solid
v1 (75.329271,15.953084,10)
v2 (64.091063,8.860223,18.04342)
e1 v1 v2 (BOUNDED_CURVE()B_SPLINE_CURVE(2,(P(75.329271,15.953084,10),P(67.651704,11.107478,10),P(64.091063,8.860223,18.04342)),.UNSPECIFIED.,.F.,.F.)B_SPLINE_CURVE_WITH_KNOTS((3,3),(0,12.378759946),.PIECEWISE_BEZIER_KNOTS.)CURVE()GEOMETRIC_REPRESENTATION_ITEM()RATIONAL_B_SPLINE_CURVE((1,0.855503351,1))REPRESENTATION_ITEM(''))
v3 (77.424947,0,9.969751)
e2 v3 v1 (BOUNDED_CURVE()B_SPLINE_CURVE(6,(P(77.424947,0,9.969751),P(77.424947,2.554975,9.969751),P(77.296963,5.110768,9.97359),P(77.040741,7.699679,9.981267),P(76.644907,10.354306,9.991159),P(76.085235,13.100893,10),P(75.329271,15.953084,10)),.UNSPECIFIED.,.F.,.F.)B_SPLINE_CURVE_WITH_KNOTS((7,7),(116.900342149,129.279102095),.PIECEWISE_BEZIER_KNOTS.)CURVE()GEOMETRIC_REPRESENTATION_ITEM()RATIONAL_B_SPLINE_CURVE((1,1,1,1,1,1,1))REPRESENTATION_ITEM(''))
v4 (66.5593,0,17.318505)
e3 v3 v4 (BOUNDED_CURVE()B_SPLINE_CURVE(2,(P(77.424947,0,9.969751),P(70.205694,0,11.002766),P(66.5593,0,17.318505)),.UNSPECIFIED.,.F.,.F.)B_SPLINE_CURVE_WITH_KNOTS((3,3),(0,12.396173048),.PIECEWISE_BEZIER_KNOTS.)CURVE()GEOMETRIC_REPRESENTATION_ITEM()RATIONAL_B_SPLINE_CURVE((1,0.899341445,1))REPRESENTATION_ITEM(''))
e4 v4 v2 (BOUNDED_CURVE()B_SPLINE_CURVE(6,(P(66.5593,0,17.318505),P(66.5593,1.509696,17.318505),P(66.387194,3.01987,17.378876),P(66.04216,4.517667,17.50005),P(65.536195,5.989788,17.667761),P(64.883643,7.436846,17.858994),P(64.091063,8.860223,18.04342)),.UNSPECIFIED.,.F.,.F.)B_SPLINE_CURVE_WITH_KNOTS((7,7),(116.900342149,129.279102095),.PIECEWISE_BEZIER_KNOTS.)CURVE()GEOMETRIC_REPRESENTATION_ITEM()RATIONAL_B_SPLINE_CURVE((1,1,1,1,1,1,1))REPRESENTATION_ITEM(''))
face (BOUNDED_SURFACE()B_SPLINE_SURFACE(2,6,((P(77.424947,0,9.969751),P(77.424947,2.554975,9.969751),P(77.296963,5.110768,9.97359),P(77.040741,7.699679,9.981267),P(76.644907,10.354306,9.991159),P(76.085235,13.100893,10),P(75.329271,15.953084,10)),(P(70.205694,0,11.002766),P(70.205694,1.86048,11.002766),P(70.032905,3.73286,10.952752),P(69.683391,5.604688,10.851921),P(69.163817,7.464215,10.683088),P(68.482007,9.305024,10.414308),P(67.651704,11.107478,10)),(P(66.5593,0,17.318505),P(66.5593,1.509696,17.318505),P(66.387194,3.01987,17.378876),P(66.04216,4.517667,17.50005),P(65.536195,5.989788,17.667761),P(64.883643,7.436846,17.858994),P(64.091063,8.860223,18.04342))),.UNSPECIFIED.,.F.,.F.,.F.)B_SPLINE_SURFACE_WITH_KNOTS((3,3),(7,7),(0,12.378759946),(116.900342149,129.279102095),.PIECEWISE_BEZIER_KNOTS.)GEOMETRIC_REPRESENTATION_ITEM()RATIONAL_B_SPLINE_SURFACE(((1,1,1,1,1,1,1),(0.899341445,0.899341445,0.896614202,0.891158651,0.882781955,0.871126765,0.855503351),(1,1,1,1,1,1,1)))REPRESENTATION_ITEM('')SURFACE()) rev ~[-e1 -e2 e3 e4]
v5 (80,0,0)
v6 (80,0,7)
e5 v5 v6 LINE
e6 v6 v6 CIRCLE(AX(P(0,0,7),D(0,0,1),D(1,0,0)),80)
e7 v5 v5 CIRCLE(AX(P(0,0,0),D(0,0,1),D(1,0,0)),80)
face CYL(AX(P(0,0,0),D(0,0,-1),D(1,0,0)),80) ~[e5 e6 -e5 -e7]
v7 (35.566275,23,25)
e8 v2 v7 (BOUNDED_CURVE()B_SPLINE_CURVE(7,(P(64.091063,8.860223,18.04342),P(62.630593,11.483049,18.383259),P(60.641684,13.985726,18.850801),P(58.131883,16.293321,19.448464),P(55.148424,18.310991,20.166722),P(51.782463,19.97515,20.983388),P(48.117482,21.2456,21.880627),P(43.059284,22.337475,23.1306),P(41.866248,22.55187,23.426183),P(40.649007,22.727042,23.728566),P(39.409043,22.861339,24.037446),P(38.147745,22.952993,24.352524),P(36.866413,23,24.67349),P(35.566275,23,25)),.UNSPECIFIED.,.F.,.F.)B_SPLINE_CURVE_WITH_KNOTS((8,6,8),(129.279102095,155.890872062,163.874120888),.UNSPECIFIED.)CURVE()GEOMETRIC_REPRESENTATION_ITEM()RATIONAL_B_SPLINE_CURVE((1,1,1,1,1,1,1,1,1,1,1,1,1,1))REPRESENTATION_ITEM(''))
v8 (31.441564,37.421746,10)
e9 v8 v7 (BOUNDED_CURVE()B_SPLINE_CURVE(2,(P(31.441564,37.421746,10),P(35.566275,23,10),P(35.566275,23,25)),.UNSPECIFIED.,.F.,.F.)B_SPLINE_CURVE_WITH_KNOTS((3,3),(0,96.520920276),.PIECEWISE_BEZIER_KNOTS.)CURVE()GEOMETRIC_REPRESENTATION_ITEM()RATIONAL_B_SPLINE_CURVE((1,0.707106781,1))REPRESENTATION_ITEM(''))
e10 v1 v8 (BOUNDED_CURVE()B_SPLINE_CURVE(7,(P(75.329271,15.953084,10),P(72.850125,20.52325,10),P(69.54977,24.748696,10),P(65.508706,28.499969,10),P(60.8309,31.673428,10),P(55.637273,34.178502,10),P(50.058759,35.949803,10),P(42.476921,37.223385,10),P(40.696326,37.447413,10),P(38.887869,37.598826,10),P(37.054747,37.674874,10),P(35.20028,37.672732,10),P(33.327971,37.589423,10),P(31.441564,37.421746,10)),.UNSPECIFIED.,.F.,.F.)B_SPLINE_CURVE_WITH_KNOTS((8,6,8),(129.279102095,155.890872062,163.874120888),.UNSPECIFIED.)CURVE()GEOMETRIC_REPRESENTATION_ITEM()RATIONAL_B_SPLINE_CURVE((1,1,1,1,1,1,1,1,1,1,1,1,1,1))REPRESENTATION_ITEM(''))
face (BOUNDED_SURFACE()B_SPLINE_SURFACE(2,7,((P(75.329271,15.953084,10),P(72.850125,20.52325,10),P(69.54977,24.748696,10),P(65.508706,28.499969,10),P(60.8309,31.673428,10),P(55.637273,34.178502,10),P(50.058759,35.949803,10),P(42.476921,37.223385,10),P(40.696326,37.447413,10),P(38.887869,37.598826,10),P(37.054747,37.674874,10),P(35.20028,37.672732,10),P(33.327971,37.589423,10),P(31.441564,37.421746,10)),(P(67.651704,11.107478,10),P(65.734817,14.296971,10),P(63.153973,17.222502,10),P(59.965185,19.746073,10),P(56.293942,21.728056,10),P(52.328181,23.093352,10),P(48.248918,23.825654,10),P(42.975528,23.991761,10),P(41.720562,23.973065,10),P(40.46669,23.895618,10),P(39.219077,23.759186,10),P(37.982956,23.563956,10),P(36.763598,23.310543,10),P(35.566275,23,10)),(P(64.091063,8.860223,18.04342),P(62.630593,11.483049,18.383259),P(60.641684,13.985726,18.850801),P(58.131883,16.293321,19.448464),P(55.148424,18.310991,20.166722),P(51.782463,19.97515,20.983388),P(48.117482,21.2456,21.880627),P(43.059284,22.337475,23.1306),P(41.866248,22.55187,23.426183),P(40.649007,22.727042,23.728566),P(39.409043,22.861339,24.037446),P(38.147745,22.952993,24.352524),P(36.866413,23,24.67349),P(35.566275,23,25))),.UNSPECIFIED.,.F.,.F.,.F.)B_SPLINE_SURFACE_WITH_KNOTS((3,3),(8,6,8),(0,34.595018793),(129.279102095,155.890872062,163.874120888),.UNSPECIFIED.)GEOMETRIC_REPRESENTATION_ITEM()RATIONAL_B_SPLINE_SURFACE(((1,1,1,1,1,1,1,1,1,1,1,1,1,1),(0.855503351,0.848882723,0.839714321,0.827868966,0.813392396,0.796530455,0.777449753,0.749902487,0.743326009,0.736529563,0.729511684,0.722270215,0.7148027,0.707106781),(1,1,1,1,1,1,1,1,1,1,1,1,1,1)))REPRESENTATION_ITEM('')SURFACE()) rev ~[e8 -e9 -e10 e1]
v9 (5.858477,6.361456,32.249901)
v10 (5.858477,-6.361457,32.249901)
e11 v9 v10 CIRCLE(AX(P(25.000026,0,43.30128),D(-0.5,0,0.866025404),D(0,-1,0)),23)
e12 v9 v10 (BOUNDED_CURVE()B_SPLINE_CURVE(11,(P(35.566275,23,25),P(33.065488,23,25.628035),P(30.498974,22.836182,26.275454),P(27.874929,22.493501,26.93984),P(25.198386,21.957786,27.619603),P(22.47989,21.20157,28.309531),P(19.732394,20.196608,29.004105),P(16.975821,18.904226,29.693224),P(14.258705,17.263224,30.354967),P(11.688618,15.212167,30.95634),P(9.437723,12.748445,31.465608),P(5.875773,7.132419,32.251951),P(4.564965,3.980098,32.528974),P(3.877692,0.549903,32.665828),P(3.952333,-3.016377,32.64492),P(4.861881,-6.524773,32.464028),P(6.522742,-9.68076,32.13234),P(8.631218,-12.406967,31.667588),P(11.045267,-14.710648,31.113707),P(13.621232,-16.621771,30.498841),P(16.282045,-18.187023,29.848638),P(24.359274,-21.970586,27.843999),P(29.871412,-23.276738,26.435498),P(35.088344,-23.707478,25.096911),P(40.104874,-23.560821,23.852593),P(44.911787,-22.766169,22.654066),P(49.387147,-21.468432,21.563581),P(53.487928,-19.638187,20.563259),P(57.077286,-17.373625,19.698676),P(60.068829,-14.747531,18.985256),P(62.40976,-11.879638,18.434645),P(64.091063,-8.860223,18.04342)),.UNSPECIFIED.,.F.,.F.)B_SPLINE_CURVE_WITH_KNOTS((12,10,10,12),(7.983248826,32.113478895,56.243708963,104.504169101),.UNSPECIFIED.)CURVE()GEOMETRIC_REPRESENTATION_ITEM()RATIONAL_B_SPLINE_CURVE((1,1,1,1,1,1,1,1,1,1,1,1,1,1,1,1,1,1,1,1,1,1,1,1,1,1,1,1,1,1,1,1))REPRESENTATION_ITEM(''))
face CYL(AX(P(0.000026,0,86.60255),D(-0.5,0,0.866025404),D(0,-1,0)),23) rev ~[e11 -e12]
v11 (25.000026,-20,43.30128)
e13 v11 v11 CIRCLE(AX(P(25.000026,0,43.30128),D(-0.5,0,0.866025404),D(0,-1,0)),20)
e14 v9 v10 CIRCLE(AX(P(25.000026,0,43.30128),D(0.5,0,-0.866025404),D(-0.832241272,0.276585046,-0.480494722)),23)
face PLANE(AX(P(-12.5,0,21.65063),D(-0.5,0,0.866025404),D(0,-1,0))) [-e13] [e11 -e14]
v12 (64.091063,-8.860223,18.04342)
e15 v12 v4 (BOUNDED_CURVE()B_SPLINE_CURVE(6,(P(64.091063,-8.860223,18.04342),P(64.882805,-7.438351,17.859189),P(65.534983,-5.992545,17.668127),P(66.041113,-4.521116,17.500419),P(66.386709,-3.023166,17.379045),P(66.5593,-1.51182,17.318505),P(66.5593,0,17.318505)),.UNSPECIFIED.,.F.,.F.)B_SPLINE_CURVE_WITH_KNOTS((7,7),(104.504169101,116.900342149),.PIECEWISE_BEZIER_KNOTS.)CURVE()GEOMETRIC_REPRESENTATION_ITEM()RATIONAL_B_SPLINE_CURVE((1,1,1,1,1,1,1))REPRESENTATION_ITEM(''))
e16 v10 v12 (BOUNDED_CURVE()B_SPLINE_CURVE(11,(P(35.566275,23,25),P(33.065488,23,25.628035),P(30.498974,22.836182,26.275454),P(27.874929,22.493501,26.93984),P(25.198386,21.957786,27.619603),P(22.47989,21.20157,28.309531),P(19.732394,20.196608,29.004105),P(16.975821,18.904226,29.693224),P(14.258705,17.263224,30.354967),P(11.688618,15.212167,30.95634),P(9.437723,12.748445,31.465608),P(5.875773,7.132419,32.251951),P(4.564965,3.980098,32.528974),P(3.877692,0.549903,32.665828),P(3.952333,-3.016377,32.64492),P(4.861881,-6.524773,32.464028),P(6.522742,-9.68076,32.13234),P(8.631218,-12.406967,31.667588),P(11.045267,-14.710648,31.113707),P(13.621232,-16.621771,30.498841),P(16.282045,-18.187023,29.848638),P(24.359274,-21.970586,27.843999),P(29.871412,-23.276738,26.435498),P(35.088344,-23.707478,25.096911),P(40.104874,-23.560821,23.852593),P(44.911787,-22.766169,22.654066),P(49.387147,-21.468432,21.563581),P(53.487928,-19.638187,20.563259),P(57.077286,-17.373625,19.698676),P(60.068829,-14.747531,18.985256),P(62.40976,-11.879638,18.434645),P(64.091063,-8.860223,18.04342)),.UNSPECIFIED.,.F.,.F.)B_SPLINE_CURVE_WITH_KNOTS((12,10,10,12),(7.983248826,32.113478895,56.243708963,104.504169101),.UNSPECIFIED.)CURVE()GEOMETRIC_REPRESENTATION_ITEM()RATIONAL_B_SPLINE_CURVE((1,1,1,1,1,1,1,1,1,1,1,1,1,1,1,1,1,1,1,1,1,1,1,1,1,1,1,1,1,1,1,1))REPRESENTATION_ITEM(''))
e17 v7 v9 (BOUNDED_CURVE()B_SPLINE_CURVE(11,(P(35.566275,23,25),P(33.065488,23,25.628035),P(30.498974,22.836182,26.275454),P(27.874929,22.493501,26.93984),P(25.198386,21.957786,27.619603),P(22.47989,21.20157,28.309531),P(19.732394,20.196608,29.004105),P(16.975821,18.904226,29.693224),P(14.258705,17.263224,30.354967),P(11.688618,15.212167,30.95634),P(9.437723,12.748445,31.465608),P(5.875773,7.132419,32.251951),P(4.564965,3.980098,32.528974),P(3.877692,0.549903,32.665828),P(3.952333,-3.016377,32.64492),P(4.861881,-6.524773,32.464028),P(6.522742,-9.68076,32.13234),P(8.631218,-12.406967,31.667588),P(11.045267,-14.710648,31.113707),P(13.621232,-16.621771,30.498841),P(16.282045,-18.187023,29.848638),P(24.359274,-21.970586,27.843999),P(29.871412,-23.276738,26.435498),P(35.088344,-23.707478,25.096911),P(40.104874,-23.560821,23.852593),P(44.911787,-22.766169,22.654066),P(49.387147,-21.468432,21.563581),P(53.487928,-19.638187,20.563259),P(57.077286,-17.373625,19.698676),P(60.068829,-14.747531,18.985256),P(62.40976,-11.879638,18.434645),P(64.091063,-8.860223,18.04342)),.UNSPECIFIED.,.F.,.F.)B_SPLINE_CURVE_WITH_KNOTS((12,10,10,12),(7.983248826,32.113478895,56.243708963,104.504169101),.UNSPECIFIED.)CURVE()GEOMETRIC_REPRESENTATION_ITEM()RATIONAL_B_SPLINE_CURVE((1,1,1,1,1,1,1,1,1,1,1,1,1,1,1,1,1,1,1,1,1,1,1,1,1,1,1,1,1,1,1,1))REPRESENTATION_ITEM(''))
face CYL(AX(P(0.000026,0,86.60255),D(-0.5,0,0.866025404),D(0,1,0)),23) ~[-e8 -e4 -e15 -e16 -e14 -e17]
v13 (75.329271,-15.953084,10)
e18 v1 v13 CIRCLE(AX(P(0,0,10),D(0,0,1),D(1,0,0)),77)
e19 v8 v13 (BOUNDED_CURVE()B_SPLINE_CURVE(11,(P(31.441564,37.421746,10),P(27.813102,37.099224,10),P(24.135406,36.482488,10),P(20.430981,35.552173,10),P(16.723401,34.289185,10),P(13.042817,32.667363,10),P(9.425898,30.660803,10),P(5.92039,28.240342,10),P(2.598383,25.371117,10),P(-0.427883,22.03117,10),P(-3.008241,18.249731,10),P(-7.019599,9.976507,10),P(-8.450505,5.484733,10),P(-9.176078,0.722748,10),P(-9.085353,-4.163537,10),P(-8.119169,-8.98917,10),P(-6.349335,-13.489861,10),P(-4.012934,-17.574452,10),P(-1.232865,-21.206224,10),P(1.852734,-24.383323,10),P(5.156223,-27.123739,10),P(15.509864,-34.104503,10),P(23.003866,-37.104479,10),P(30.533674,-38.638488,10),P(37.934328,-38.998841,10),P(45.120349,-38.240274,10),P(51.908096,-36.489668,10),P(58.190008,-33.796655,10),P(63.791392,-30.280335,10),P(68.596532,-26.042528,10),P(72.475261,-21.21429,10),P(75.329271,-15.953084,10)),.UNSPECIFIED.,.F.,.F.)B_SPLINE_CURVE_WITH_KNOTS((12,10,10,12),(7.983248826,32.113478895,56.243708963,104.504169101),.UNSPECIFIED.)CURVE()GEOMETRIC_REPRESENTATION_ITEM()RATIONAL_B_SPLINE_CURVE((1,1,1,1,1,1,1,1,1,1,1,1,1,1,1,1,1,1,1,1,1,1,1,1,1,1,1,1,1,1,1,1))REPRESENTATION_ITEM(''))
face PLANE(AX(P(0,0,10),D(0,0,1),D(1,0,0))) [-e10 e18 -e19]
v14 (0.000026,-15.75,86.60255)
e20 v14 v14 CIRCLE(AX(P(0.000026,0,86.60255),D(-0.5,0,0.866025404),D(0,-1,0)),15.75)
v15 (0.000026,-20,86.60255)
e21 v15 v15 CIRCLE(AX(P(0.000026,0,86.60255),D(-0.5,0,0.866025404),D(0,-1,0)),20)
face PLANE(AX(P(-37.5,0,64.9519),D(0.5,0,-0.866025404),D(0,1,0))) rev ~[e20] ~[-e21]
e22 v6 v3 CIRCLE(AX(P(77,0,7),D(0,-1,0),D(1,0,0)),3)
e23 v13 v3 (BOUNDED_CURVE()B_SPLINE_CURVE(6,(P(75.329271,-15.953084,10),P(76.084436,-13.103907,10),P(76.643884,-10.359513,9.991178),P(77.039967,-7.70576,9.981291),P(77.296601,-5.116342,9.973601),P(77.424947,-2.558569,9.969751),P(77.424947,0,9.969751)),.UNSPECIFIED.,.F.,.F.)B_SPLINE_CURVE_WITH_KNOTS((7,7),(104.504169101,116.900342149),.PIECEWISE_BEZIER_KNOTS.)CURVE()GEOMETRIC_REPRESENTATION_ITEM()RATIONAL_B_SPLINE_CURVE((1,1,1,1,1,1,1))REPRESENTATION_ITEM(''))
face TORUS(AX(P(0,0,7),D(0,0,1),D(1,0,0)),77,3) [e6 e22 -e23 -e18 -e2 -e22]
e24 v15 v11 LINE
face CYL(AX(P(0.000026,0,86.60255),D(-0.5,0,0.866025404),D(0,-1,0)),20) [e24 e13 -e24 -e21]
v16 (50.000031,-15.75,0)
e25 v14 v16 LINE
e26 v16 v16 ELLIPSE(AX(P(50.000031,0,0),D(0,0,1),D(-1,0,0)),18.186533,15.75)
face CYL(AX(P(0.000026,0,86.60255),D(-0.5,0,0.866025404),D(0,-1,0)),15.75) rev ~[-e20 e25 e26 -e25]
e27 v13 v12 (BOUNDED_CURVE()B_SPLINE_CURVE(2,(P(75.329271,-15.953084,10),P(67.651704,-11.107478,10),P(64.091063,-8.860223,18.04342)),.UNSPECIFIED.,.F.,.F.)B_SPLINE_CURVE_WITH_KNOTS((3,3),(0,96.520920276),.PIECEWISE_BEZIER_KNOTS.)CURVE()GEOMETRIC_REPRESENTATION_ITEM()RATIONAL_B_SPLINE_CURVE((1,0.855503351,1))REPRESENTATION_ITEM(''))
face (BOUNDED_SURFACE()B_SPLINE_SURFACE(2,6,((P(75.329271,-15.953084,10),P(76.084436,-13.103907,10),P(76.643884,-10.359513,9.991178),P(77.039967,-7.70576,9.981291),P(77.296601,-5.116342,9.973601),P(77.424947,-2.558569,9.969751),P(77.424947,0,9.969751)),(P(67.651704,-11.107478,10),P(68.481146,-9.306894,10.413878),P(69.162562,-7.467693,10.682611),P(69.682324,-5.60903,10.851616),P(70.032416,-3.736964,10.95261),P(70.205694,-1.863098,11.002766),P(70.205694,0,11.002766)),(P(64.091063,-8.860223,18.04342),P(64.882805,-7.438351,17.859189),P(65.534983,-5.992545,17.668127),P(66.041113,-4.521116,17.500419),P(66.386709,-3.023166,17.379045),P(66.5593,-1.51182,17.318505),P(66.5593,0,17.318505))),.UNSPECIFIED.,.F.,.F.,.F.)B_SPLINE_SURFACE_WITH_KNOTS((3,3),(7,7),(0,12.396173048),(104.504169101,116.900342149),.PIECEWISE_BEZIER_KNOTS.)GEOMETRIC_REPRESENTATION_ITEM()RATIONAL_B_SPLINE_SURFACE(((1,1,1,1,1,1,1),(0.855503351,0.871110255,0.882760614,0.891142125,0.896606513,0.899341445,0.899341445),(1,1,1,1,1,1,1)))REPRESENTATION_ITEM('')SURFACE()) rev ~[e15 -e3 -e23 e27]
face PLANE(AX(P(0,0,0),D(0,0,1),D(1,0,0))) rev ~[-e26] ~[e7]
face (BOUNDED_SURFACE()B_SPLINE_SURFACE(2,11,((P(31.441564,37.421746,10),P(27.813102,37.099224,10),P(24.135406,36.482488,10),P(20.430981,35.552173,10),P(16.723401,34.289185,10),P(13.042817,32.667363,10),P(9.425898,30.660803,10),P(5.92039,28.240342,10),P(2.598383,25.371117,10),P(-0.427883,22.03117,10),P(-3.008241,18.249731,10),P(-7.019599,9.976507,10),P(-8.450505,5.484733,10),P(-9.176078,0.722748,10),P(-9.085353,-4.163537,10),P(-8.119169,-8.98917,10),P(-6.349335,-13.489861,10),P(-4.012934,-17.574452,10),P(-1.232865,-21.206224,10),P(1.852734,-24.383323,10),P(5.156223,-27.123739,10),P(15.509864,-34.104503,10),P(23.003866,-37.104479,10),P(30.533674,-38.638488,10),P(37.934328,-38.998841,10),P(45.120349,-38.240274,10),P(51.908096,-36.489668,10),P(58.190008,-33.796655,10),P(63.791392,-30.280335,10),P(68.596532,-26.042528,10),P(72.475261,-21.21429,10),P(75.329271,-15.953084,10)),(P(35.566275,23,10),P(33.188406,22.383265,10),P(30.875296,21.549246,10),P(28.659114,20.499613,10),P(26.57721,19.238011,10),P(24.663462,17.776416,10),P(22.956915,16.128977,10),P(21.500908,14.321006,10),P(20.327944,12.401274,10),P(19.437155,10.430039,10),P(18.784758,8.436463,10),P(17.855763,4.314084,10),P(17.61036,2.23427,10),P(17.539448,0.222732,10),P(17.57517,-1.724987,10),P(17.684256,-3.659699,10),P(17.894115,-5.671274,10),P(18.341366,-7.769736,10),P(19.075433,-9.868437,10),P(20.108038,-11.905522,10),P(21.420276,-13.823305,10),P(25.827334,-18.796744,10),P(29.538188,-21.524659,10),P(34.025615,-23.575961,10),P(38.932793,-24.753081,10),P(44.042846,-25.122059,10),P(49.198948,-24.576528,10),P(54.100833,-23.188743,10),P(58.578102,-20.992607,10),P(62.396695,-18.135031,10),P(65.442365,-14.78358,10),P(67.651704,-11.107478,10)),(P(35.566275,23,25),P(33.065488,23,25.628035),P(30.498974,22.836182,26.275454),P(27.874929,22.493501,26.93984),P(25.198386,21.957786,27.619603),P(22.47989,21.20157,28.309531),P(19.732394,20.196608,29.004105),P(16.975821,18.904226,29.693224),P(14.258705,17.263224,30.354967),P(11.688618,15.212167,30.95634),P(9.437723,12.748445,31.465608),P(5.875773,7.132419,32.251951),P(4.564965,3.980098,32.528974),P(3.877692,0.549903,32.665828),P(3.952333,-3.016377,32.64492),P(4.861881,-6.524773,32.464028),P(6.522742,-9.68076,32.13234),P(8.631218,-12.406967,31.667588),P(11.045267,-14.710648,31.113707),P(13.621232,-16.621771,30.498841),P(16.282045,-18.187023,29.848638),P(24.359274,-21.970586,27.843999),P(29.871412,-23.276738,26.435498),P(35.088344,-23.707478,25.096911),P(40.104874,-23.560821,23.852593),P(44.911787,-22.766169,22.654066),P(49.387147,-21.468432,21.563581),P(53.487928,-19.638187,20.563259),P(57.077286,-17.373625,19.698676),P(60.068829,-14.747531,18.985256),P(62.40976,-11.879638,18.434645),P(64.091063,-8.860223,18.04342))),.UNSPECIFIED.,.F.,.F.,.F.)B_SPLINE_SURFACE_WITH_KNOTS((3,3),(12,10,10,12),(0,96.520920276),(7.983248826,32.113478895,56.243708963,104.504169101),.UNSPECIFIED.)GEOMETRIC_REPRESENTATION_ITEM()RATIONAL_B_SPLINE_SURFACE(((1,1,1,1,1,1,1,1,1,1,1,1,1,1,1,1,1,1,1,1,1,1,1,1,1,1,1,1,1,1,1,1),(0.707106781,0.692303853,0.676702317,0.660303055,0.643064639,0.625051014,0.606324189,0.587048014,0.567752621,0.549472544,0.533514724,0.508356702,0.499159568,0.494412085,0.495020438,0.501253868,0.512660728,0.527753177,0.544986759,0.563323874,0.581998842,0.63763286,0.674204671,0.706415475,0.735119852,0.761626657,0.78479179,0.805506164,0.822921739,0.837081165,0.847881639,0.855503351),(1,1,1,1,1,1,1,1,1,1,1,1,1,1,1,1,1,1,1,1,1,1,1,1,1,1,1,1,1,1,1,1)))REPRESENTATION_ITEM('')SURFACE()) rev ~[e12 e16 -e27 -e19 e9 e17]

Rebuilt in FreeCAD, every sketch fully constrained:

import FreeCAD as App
import Part
import Sketcher
from FreeCAD import Vector
Q = App.Units.Quantity


def edges_at(feature, points):
    """Names of the edges that pass closest to the given points."""
    edges = feature.Shape.Edges
    near = lambda p: min(range(len(edges)), key=lambda i: edges[i].distToShape(Part.Vertex(*p))[0])
    return sorted({f"Edge{near(p) + 1}" for p in points})


def add_polygon(sketch, points):
    """Adds a closed chain of lines whose ends are joined by coincident constraints."""
    first, n = sketch.GeometryCount, len(points)
    for a, b in zip(points, points[1:] + points[:1]):
        sketch.addGeometry(Part.LineSegment(App.Vector(*a, 0), App.Vector(*b, 0)), False)
    for i in range(n):
        sketch.addConstraint(Sketcher.Constraint("Coincident", first + i, 2, first + (i + 1) % n, 1))

doc = App.newDocument("Part")
body = doc.addObject("PartDesign::Body", "Body")

sketch1 = body.newObject("Sketcher::SketchObject", "Sketch")
sketch1.AttachmentSupport = (doc.getObject("XY_Plane"), [""])
sketch1.MapMode = "FlatFace"
sketch1.addGeometry(Part.Circle(Vector(0, 0, 0), Vector(0, 0, 1), 80), False)
sketch1.addConstraint(Sketcher.Constraint("Coincident", 0, 3, -1, 1))
sketch1.addConstraint(Sketcher.Constraint("Diameter", 0, Q("160 mm")))
pad1 = body.newObject("PartDesign::Pad", "Pad")
pad1.Profile = sketch1
pad1.Length = 10
doc.recompute()

fillet = body.newObject("PartDesign::Fillet", "Fillet")
fillet.Base = (pad1, edges_at(pad1, [(-74.586, -28.929, 10)]))
fillet.Radius = 3

sketch2 = body.newObject("Sketcher::SketchObject", "Sketch001")
sketch2.Placement = App.Placement(Vector(-37.5, 0, 64.9519), App.Rotation(Vector(0, 1, 0), Vector(0.866025404, 0, 0.5), Vector(0.5, 0, -0.866025404), "ZXY"))
sketch2.addGeometry(Part.Circle(Vector(0, 43.3013, 0), Vector(0, 0, 1), 23), False)
sketch2.addConstraint(Sketcher.Constraint("PointOnObject", 0, 3, -2))
sketch2.addConstraint(Sketcher.Constraint("Diameter", 0, Q("46 mm")))
sketch2.addConstraint(Sketcher.Constraint("DistanceY", -1, 1, 0, 3, Q("43.3013 mm")))
pad2 = body.newObject("PartDesign::Pad", "Pad001")
pad2.Profile = sketch2
pad2.Length = 120
doc.recompute()

fillet2 = body.newObject("PartDesign::Fillet", "Fillet001")
fillet2.Base = (pad2, edges_at(pad2, [(17.668, 0, 10)]))
fillet2.Radius = 15

sketch3 = body.newObject("Sketcher::SketchObject", "Sketch002")
sketch3.Placement = App.Placement(Vector(-37.5, 0, 64.9519), App.Rotation(Vector(0, -1, 0), Vector(0.866025404, 0, 0.5), Vector(-0.5, 0, 0.866025404), "ZXY"))
sketch3.addGeometry(Part.Circle(Vector(0, 43.3013, 0), Vector(0, 0, 1), 15.75), False)
sketch3.addConstraint(Sketcher.Constraint("PointOnObject", 0, 3, -2))
sketch3.addConstraint(Sketcher.Constraint("Diameter", 0, Q("31.5 mm")))
sketch3.addConstraint(Sketcher.Constraint("DistanceY", -1, 1, 0, 3, Q("43.3013 mm")))
pocket1 = body.newObject("PartDesign::Pocket", "Pocket")
pocket1.Profile = sketch3
pocket1.Length = 170

sketch4 = body.newObject("Sketcher::SketchObject", "Sketch003")
sketch4.Placement = App.Placement(Vector(-37.5, 0, 64.9519), App.Rotation(Vector(0, -1, 0), Vector(0.866025404, 0, 0.5), Vector(-0.5, 0, 0.866025404), "ZXY"))
sketch4.addGeometry(Part.Circle(Vector(0, 43.3013, 0), Vector(0, 0, 1), 23), False)
sketch4.addGeometry(Part.Circle(Vector(0, 43.3013, 0), Vector(0, 0, 1), 20), False)
sketch4.addConstraint(Sketcher.Constraint("Coincident", 1, 3, 0, 3))
sketch4.addConstraint(Sketcher.Constraint("PointOnObject", 0, 3, -2))
sketch4.addConstraint(Sketcher.Constraint("Diameter", 1, Q("40 mm")))
sketch4.addConstraint(Sketcher.Constraint("Diameter", 0, Q("46 mm")))
sketch4.addConstraint(Sketcher.Constraint("DistanceY", -1, 1, 0, 3, Q("43.3013 mm")))
pocket2 = body.newObject("PartDesign::Pocket", "Pocket001")
pocket2.Profile = sketch4
pocket2.Length = 50

sketch5 = body.newObject("Sketcher::SketchObject", "Sketch004")
sketch5.AttachmentSupport = (doc.getObject("XY_Plane"), [""])
sketch5.MapMode = "FlatFace"
add_polygon(sketch5, [(111.2852, 80), (-80, 80), (-80, -85.555), (111.2852, -85.555)])
sketch5.addConstraint(Sketcher.Constraint("Horizontal", 0))
sketch5.addConstraint(Sketcher.Constraint("Vertical", 1))
sketch5.addConstraint(Sketcher.Constraint("Horizontal", 2))
sketch5.addConstraint(Sketcher.Constraint("Vertical", 3))
sketch5.addConstraint(Sketcher.Constraint("DistanceX", 0, 2, -1, 1, Q("80 mm")))
sketch5.addConstraint(Sketcher.Constraint("DistanceY", -1, 1, 0, 2, Q("80 mm")))
sketch5.addConstraint(Sketcher.Constraint("DistanceY", 1, 2, 1, 1, Q("165.555 mm")))
sketch5.addConstraint(Sketcher.Constraint("DistanceX", 0, 2, 0, 1, Q("191.2852 mm")))
pocket3 = body.newObject("PartDesign::Pocket", "Pocket002")
pocket3.Profile = sketch5
pocket3.Length = 90

doc.recompute()
